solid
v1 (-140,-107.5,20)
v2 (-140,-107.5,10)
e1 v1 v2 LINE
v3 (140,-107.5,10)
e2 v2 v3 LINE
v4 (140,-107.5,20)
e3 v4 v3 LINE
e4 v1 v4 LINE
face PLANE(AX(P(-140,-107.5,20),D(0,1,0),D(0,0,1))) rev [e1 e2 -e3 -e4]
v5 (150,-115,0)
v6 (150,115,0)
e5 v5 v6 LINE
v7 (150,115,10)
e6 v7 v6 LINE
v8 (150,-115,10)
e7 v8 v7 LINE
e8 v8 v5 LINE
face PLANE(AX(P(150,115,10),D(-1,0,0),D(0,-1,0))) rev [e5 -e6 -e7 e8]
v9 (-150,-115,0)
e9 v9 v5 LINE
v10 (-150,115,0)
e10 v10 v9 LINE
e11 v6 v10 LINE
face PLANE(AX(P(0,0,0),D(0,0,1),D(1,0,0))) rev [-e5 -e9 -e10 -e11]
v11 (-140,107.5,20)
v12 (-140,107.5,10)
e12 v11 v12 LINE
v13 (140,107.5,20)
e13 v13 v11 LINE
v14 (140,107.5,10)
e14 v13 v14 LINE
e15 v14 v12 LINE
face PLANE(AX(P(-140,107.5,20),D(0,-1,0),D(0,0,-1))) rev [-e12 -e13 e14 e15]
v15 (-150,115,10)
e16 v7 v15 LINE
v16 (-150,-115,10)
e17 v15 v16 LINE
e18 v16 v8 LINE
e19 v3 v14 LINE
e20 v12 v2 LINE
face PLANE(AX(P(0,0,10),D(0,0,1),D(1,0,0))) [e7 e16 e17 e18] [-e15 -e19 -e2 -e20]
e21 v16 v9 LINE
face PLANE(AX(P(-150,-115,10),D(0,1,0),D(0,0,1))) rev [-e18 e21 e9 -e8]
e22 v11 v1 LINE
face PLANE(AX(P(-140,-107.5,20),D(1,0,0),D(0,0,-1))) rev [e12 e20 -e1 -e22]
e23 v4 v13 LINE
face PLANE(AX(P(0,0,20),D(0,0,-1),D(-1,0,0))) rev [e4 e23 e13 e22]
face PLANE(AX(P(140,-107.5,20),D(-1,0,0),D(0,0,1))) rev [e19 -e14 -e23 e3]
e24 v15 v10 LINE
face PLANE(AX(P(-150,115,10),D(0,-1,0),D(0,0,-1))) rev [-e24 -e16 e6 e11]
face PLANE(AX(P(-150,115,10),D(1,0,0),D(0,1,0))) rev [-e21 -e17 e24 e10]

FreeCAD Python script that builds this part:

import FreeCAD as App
import Part
import Sketcher
from FreeCAD import Vector
Q = App.Units.Quantity

doc = App.newDocument("Part")
body = doc.addObject("PartDesign::Body", "Body")

# Sketch on XY plane
sketch1 = doc.addObject("Sketcher::SketchObject", "Sketch")
body.addObject(sketch1)
sketch1.AttachmentSupport = (doc.XY_Plane, [""])
sketch1.MapMode = "FlatFace"
sketch1.addGeometry([
    Part.LineSegment(Vector(-150, 115, 0), Vector(-150, -115, 0)),
    Part.LineSegment(Vector(-150, -115, 0), Vector(150, -115, 0)),
    Part.LineSegment(Vector(150, -115, 0), Vector(150, 115, 0)),
    Part.LineSegment(Vector(150, 115, 0), Vector(-150, 115, 0)),
], False)
sketch1.addConstraint([
    Sketcher.Constraint("Coincident", 0, 2, 1, 1),
    Sketcher.Constraint("Coincident", 1, 2, 2, 1),
    Sketcher.Constraint("Coincident", 2, 2, 3, 1),
    Sketcher.Constraint("Coincident", 3, 2, 0, 1),
    Sketcher.Constraint("Vertical", 0),
    Sketcher.Constraint("Horizontal", 1),
    Sketcher.Constraint("Vertical", 2),
    Sketcher.Constraint("Horizontal", 3),
    Sketcher.Constraint("Symmetric", 0, 2, 2, 2, -1, 1),
    Sketcher.Constraint("DistanceX", 1, 1, 1, 2, Q("300 mm")),
    Sketcher.Constraint("DistanceY", 0, 2, 0, 1, Q("230 mm")),
])
pad1 = doc.addObject("PartDesign::Pad", "Pad")
body.addObject(pad1)
pad1.Profile = sketch1
pad1.Length = 10

# Sketch on XY plane
sketch2 = doc.addObject("Sketcher::SketchObject", "Sketch001")
body.addObject(sketch2)
sketch2.AttachmentSupport = (doc.XY_Plane, [""])
sketch2.MapMode = "FlatFace"
sketch2.AttachmentOffset = App.Placement(Vector(0, 0, 10), App.Rotation())
sketch2.addGeometry([
    Part.LineSegment(Vector(-140, 108, 0), Vector(-140, -108, 0)),
    Part.LineSegment(Vector(-140, -108, 0), Vector(140, -108, 0)),
    Part.LineSegment(Vector(140, -108, 0), Vector(140, 108, 0)),
    Part.LineSegment(Vector(140, 108, 0), Vector(-140, 108, 0)),
], False)
sketch2.addConstraint([
    Sketcher.Constraint("Coincident", 0, 2, 1, 1),
    Sketcher.Constraint("Coincident", 1, 2, 2, 1),
    Sketcher.Constraint("Coincident", 2, 2, 3, 1),
    Sketcher.Constraint("Coincident", 3, 2, 0, 1),
    Sketcher.Constraint("Vertical", 0),
    Sketcher.Constraint("Horizontal", 1),
    Sketcher.Constraint("Vertical", 2),
    Sketcher.Constraint("Horizontal", 3),
    Sketcher.Constraint("Symmetric", 0, 2, 2, 2, -1, 1),
    Sketcher.Constraint("DistanceX", 1, 1, 1, 2, Q("280 mm")),
    Sketcher.Constraint("DistanceY", 0, 2, 0, 1, Q("215 mm")),
])
pad2 = doc.addObject("PartDesign::Pad", "Pad001")
body.addObject(pad2)
pad2.Profile = sketch2
pad2.Length = 10

doc.recompute()
